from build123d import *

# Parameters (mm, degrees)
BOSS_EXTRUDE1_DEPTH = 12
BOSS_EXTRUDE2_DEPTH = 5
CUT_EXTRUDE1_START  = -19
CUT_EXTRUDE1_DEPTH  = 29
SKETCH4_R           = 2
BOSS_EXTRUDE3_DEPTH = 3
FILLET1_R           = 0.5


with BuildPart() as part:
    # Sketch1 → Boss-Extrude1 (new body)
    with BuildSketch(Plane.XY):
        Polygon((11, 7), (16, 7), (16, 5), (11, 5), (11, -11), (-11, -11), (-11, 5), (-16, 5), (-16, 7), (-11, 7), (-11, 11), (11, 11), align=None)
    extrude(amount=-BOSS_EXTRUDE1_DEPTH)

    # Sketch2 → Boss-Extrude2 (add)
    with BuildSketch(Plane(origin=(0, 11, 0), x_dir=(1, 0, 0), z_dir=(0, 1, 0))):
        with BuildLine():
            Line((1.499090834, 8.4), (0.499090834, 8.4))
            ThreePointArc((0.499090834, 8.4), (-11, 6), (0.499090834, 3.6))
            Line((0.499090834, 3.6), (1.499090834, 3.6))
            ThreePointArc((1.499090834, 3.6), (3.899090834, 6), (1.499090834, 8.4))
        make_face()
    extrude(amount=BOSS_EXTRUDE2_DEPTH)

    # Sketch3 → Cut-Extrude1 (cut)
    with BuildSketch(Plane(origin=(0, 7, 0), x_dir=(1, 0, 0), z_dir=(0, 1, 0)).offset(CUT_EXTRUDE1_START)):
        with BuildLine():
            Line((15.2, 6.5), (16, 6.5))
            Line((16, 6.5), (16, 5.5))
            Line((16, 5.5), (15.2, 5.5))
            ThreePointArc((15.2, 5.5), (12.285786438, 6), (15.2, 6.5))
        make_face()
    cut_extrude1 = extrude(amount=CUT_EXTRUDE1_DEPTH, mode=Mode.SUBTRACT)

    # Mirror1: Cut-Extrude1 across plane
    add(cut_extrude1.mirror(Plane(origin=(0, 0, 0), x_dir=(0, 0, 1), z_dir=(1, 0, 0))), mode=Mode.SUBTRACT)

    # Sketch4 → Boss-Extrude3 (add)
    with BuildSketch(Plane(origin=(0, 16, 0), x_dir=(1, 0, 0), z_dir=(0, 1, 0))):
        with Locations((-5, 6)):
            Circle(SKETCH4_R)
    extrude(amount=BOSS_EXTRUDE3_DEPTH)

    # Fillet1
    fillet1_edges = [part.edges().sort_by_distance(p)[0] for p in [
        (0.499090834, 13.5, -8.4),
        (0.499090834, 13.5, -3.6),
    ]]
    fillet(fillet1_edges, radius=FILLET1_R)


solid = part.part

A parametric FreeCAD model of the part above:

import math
import FreeCAD as App
import Part
import Sketcher
from FreeCAD import Vector
Q = App.Units.Quantity


def edges_at(feature, points):
    """Names of the edges that pass closest to the given points."""
    edges = feature.Shape.Edges
    near = lambda p: min(range(len(edges)), key=lambda i: edges[i].distToShape(Part.Vertex(*p))[0])
    return sorted({f"Edge{near(p) + 1}" for p in points})

doc = App.newDocument("Part")
params = doc.addObject("Spreadsheet::Sheet", "Params")
for row, (alias, value) in enumerate([
    ("sketch1_width", "5 mm"),
    ("sketch1_width2", "22 mm"),
    ("sketch1_height", "4 mm"),
    ("sketch1_height2", "2 mm"),
    ("sketch1_height3", "16 mm"),
    ("pad1_length", "12 mm"),
    ("sketch2_radius", "6 mm"),
    ("sketch2_radius2", "2.4 mm"),
    ("sketch2_width", "1 mm"),
    ("pad2_length", "5 mm"),
    ("sketch3_radius", "1.5 mm"),
    ("sketch3_height", "1 mm"),
    ("sketch3_width", "0.8 mm"),
    ("pocket1_length", "29 mm"),
    ("sketch4_diameter", "4 mm"),
    ("pad3_length", "3 mm"),
    ("fillet_radius", "0.5 mm"),
], start=1):
    params.set(f"A{row}", alias)
    params.set(f"B{row}", "=" + value)
    params.setAlias(f"B{row}", alias)

body = doc.addObject("PartDesign::Body", "Body")

# Sketch on XY plane
sketch1 = body.newObject("Sketcher::SketchObject", "Sketch")
sketch1.AttachmentSupport = (doc.getObject("XY_Plane"), [""])
sketch1.MapMode = "FlatFace"
sketch1.addGeometry(Part.LineSegment(Vector(16, 7, 0), Vector(11, 7, 0)), False)
sketch1.addGeometry(Part.LineSegment(Vector(11, 7, 0), Vector(11, 11, 0)), False)
sketch1.addGeometry(Part.LineSegment(Vector(11, 11, 0), Vector(-11, 11, 0)), False)
sketch1.addGeometry(Part.LineSegment(Vector(-11, 11, 0), Vector(-11, 7, 0)), False)
sketch1.addGeometry(Part.LineSegment(Vector(-11, 7, 0), Vector(-16, 7, 0)), False)
sketch1.addGeometry(Part.LineSegment(Vector(-16, 7, 0), Vector(-16, 5, 0)), False)
sketch1.addGeometry(Part.LineSegment(Vector(-16, 5, 0), Vector(-11, 5, 0)), False)
sketch1.addGeometry(Part.LineSegment(Vector(-11, 5, 0), Vector(-11, -11, 0)), False)
sketch1.addGeometry(Part.LineSegment(Vector(-11, -11, 0), Vector(11, -11, 0)), False)
sketch1.addGeometry(Part.LineSegment(Vector(11, -11, 0), Vector(11, 5, 0)), False)
sketch1.addGeometry(Part.LineSegment(Vector(11, 5, 0), Vector(16, 5, 0)), False)
sketch1.addGeometry(Part.LineSegment(Vector(16, 5, 0), Vector(16, 7, 0)), False)
sketch1.addConstraint(Sketcher.Constraint("Coincident", 0, 2, 1, 1))
sketch1.addConstraint(Sketcher.Constraint("Coincident", 1, 2, 2, 1))
sketch1.addConstraint(Sketcher.Constraint("Coincident", 2, 2, 3, 1))
sketch1.addConstraint(Sketcher.Constraint("Coincident", 3, 2, 4, 1))
sketch1.addConstraint(Sketcher.Constraint("Coincident", 4, 2, 5, 1))
sketch1.addConstraint(Sketcher.Constraint("Coincident", 5, 2, 6, 1))
sketch1.addConstraint(Sketcher.Constraint("Coincident", 6, 2, 7, 1))
sketch1.addConstraint(Sketcher.Constraint("Coincident", 7, 2, 8, 1))
sketch1.addConstraint(Sketcher.Constraint("Coincident", 8, 2, 9, 1))
sketch1.addConstraint(Sketcher.Constraint("Coincident", 9, 2, 10, 1))
sketch1.addConstraint(Sketcher.Constraint("Coincident", 10, 2, 11, 1))
sketch1.addConstraint(Sketcher.Constraint("Coincident", 11, 2, 0, 1))
sketch1.addConstraint(Sketcher.Constraint("Horizontal", 0))
sketch1.addConstraint(Sketcher.Constraint("Vertical", 1))
sketch1.addConstraint(Sketcher.Constraint("Horizontal", 2))
sketch1.addConstraint(Sketcher.Constraint("Vertical", 3))
sketch1.addConstraint(Sketcher.Constraint("Horizontal", 4))
sketch1.addConstraint(Sketcher.Constraint("Vertical", 5))
sketch1.addConstraint(Sketcher.Constraint("Horizontal", 6))
sketch1.addConstraint(Sketcher.Constraint("Vertical", 7))
sketch1.addConstraint(Sketcher.Constraint("Horizontal", 8))
sketch1.addConstraint(Sketcher.Constraint("Vertical", 9))
sketch1.addConstraint(Sketcher.Constraint("Horizontal", 10))
sketch1.addConstraint(Sketcher.Constraint("Vertical", 11))
sketch1.addConstraint(Sketcher.Constraint("Symmetric", 1, 2, 7, 2, -1, 1))
sketch1.addConstraint(Sketcher.Constraint("Symmetric", 0, 2, 3, 2, -2))
sketch1.addConstraint(Sketcher.Constraint("Symmetric", 6, 2, 9, 2, -2))
sketch1.addConstraint(Sketcher.Constraint("Equal", 0, 4))
sketch1.addConstraint(Sketcher.Constraint("DistanceX", 0, 2, 0, 1, Q("5 mm")))
sketch1.addConstraint(Sketcher.Constraint("DistanceX", 2, 2, 2, 1, Q("22 mm")))
sketch1.addConstraint(Sketcher.Constraint("DistanceY", 1, 1, 1, 2, Q("4 mm")))
sketch1.addConstraint(Sketcher.Constraint("DistanceY", 5, 2, 5, 1, Q("2 mm")))
sketch1.addConstraint(Sketcher.Constraint("DistanceY", 7, 2, 7, 1, Q("16 mm")))
sketch1.setExpression("Constraints[28]", "Params.sketch1_width")
sketch1.setExpression("Constraints[29]", "Params.sketch1_width2")
sketch1.setExpression("Constraints[30]", "Params.sketch1_height")
sketch1.setExpression("Constraints[31]", "Params.sketch1_height2")
sketch1.setExpression("Constraints[32]", "Params.sketch1_height3")
pad1 = body.newObject("PartDesign::Pad", "Pad")
pad1.Profile = sketch1
pad1.setExpression("Length", "Params.pad1_length")
pad1.Reversed = True

# Sketch on XZ plane
sketch2 = body.newObject("Sketcher::SketchObject", "Sketch001")
sketch2.AttachmentSupport = (doc.getObject("XZ_Plane"), [""])
sketch2.MapMode = "FlatFace"
sketch2.AttachmentOffset = App.Placement(Vector(0, 0, -11), App.Rotation())
sketch2.addGeometry(Part.LineSegment(Vector(1.5, -8.4, 0), Vector(0.5, -8.4, 0)), False)
sketch2.addGeometry(Part.ArcOfCircle(Part.Circle(Vector(-5, -6, 0), Vector(0, 0, 1), 6), math.radians(24), math.radians(336)), False)
sketch2.addGeometry(Part.LineSegment(Vector(0.5, -3.6, 0), Vector(1.5, -3.6, 0)), False)
sketch2.addGeometry(Part.ArcOfCircle(Part.Circle(Vector(1.5, -6, 0), Vector(0, 0, 1), 2.4), math.radians(-90), math.radians(90)), False)
sketch2.addConstraint(Sketcher.Constraint("Coincident", 0, 2, 1, 2))
sketch2.addConstraint(Sketcher.Constraint("Coincident", 1, 1, 2, 1))
sketch2.addConstraint(Sketcher.Constraint("Tangent", 2, 2, 3, 2))
sketch2.addConstraint(Sketcher.Constraint("Tangent", 3, 1, 0, 1))
sketch2.addConstraint(Sketcher.Constraint("Horizontal", 0))
sketch2.addConstraint(Sketcher.Constraint("Horizontal", 2))
sketch2.addConstraint(Sketcher.Constraint("Horizontal", 1, 3, 3, 3))
sketch2.addConstraint(Sketcher.Constraint("Radius", 1, Q("6 mm")))
sketch2.addConstraint(Sketcher.Constraint("Radius", 3, Q("2.4 mm")))
sketch2.addConstraint(Sketcher.Constraint("DistanceX", 0, 2, 0, 1, Q("1 mm")))
sketch2.addConstraint(Sketcher.Constraint("DistanceX", 1, 3, -1, 1, Q("5 mm")))
sketch2.addConstraint(Sketcher.Constraint("DistanceY", 1, 3, -1, 1, Q("6 mm")))
sketch2.setExpression("Constraints[7]", "Params.sketch2_radius")
sketch2.setExpression("Constraints[8]", "Params.sketch2_radius2")
sketch2.setExpression("Constraints[9]", "Params.sketch2_width")
pad2 = body.newObject("PartDesign::Pad", "Pad001")
pad2.Profile = sketch2
pad2.setExpression("Length", "Params.pad2_length")
pad2.Reversed = True

# Sketch on XZ plane
sketch3 = body.newObject("Sketcher::SketchObject", "Sketch002")
sketch3.AttachmentSupport = (doc.getObject("XZ_Plane"), [""])
sketch3.MapMode = "FlatFace"
sketch3.AttachmentOffset = App.Placement(Vector(0, 0, 12), App.Rotation())
sketch3.addGeometry(Part.LineSegment(Vector(16, -6.5, 0), Vector(15.2, -6.5, 0)), False)
sketch3.addGeometry(Part.ArcOfCircle(Part.Circle(Vector(13.8, -6, 0), Vector(0, 0, 1), 1.5), math.radians(19), math.radians(341)), False)
sketch3.addGeometry(Part.LineSegment(Vector(15.2, -5.5, 0), Vector(16, -5.5, 0)), False)
sketch3.addGeometry(Part.LineSegment(Vector(16, -5.5, 0), Vector(16, -6.5, 0)), False)
sketch3.addConstraint(Sketcher.Constraint("Coincident", 0, 2, 1, 2))
sketch3.addConstraint(Sketcher.Constraint("Coincident", 1, 1, 2, 1))
sketch3.addConstraint(Sketcher.Constraint("Coincident", 2, 2, 3, 1))
sketch3.addConstraint(Sketcher.Constraint("Coincident", 3, 2, 0, 1))
sketch3.addConstraint(Sketcher.Constraint("Horizontal", 0))
sketch3.addConstraint(Sketcher.Constraint("Horizontal", 2))
sketch3.addConstraint(Sketcher.Constraint("Vertical", 3))
sketch3.addConstraint(Sketcher.Constraint("Vertical", 0, 2, 1, 1))
sketch3.addConstraint(Sketcher.Constraint("Radius", 1, Q("1.5 mm")))
sketch3.addConstraint(Sketcher.Constraint("DistanceY", 3, 2, 3, 1, Q("1 mm")))
sketch3.addConstraint(Sketcher.Constraint("DistanceX", 0, 2, 0, 1, Q("0.8 mm")))
sketch3.addConstraint(Sketcher.Constraint("DistanceY", 1, 3, -1, 1, Q("6 mm")))
sketch3.addConstraint(Sketcher.Constraint("DistanceX", -1, 1, 2, 2, Q("16 mm")))
sketch3.setExpression("Constraints[8]", "Params.sketch3_radius")
sketch3.setExpression("Constraints[9]", "Params.sketch3_height")
sketch3.setExpression("Constraints[10]", "Params.sketch3_width")
pocket1 = body.newObject("PartDesign::Pocket", "Pocket")
pocket1.Profile = sketch3
pocket1.setExpression("Length", "Params.pocket1_length")
doc.recompute()

mirrored = body.newObject("PartDesign::Mirrored", "Mirrored")
mirrored.Originals = [pocket1]
mirrored.MirrorPlane = (doc.getObject("YZ_Plane"), [""])
body.Tip = mirrored

# Sketch on XZ plane
sketch4 = body.newObject("Sketcher::SketchObject", "Sketch003")
sketch4.AttachmentSupport = (doc.getObject("XZ_Plane"), [""])
sketch4.MapMode = "FlatFace"
sketch4.AttachmentOffset = App.Placement(Vector(0, 0, -16), App.Rotation())
sketch4.addGeometry(Part.Circle(Vector(-5, -6, 0), Vector(0, 0, 1), 2), False)
sketch4.addConstraint(Sketcher.Constraint("Diameter", 0, Q("4 mm")))
sketch4.addConstraint(Sketcher.Constraint("DistanceX", 0, 3, -1, 1, Q("5 mm")))
sketch4.addConstraint(Sketcher.Constraint("DistanceY", 0, 3, -1, 1, Q("6 mm")))
sketch4.setExpression("Constraints[0]", "Params.sketch4_diameter")
pad3 = body.newObject("PartDesign::Pad", "Pad002")
pad3.Profile = sketch4
pad3.setExpression("Length", "Params.pad3_length")
pad3.Reversed = True
doc.recompute()

fillet = body.newObject("PartDesign::Fillet", "Fillet")
fillet.Base = (pad3, edges_at(pad3, [(0.499, 13.5, -8.4), (0.499, 13.5, -3.6)]))
fillet.setExpression("Radius", "Params.fillet_radius")

doc.recompute()
